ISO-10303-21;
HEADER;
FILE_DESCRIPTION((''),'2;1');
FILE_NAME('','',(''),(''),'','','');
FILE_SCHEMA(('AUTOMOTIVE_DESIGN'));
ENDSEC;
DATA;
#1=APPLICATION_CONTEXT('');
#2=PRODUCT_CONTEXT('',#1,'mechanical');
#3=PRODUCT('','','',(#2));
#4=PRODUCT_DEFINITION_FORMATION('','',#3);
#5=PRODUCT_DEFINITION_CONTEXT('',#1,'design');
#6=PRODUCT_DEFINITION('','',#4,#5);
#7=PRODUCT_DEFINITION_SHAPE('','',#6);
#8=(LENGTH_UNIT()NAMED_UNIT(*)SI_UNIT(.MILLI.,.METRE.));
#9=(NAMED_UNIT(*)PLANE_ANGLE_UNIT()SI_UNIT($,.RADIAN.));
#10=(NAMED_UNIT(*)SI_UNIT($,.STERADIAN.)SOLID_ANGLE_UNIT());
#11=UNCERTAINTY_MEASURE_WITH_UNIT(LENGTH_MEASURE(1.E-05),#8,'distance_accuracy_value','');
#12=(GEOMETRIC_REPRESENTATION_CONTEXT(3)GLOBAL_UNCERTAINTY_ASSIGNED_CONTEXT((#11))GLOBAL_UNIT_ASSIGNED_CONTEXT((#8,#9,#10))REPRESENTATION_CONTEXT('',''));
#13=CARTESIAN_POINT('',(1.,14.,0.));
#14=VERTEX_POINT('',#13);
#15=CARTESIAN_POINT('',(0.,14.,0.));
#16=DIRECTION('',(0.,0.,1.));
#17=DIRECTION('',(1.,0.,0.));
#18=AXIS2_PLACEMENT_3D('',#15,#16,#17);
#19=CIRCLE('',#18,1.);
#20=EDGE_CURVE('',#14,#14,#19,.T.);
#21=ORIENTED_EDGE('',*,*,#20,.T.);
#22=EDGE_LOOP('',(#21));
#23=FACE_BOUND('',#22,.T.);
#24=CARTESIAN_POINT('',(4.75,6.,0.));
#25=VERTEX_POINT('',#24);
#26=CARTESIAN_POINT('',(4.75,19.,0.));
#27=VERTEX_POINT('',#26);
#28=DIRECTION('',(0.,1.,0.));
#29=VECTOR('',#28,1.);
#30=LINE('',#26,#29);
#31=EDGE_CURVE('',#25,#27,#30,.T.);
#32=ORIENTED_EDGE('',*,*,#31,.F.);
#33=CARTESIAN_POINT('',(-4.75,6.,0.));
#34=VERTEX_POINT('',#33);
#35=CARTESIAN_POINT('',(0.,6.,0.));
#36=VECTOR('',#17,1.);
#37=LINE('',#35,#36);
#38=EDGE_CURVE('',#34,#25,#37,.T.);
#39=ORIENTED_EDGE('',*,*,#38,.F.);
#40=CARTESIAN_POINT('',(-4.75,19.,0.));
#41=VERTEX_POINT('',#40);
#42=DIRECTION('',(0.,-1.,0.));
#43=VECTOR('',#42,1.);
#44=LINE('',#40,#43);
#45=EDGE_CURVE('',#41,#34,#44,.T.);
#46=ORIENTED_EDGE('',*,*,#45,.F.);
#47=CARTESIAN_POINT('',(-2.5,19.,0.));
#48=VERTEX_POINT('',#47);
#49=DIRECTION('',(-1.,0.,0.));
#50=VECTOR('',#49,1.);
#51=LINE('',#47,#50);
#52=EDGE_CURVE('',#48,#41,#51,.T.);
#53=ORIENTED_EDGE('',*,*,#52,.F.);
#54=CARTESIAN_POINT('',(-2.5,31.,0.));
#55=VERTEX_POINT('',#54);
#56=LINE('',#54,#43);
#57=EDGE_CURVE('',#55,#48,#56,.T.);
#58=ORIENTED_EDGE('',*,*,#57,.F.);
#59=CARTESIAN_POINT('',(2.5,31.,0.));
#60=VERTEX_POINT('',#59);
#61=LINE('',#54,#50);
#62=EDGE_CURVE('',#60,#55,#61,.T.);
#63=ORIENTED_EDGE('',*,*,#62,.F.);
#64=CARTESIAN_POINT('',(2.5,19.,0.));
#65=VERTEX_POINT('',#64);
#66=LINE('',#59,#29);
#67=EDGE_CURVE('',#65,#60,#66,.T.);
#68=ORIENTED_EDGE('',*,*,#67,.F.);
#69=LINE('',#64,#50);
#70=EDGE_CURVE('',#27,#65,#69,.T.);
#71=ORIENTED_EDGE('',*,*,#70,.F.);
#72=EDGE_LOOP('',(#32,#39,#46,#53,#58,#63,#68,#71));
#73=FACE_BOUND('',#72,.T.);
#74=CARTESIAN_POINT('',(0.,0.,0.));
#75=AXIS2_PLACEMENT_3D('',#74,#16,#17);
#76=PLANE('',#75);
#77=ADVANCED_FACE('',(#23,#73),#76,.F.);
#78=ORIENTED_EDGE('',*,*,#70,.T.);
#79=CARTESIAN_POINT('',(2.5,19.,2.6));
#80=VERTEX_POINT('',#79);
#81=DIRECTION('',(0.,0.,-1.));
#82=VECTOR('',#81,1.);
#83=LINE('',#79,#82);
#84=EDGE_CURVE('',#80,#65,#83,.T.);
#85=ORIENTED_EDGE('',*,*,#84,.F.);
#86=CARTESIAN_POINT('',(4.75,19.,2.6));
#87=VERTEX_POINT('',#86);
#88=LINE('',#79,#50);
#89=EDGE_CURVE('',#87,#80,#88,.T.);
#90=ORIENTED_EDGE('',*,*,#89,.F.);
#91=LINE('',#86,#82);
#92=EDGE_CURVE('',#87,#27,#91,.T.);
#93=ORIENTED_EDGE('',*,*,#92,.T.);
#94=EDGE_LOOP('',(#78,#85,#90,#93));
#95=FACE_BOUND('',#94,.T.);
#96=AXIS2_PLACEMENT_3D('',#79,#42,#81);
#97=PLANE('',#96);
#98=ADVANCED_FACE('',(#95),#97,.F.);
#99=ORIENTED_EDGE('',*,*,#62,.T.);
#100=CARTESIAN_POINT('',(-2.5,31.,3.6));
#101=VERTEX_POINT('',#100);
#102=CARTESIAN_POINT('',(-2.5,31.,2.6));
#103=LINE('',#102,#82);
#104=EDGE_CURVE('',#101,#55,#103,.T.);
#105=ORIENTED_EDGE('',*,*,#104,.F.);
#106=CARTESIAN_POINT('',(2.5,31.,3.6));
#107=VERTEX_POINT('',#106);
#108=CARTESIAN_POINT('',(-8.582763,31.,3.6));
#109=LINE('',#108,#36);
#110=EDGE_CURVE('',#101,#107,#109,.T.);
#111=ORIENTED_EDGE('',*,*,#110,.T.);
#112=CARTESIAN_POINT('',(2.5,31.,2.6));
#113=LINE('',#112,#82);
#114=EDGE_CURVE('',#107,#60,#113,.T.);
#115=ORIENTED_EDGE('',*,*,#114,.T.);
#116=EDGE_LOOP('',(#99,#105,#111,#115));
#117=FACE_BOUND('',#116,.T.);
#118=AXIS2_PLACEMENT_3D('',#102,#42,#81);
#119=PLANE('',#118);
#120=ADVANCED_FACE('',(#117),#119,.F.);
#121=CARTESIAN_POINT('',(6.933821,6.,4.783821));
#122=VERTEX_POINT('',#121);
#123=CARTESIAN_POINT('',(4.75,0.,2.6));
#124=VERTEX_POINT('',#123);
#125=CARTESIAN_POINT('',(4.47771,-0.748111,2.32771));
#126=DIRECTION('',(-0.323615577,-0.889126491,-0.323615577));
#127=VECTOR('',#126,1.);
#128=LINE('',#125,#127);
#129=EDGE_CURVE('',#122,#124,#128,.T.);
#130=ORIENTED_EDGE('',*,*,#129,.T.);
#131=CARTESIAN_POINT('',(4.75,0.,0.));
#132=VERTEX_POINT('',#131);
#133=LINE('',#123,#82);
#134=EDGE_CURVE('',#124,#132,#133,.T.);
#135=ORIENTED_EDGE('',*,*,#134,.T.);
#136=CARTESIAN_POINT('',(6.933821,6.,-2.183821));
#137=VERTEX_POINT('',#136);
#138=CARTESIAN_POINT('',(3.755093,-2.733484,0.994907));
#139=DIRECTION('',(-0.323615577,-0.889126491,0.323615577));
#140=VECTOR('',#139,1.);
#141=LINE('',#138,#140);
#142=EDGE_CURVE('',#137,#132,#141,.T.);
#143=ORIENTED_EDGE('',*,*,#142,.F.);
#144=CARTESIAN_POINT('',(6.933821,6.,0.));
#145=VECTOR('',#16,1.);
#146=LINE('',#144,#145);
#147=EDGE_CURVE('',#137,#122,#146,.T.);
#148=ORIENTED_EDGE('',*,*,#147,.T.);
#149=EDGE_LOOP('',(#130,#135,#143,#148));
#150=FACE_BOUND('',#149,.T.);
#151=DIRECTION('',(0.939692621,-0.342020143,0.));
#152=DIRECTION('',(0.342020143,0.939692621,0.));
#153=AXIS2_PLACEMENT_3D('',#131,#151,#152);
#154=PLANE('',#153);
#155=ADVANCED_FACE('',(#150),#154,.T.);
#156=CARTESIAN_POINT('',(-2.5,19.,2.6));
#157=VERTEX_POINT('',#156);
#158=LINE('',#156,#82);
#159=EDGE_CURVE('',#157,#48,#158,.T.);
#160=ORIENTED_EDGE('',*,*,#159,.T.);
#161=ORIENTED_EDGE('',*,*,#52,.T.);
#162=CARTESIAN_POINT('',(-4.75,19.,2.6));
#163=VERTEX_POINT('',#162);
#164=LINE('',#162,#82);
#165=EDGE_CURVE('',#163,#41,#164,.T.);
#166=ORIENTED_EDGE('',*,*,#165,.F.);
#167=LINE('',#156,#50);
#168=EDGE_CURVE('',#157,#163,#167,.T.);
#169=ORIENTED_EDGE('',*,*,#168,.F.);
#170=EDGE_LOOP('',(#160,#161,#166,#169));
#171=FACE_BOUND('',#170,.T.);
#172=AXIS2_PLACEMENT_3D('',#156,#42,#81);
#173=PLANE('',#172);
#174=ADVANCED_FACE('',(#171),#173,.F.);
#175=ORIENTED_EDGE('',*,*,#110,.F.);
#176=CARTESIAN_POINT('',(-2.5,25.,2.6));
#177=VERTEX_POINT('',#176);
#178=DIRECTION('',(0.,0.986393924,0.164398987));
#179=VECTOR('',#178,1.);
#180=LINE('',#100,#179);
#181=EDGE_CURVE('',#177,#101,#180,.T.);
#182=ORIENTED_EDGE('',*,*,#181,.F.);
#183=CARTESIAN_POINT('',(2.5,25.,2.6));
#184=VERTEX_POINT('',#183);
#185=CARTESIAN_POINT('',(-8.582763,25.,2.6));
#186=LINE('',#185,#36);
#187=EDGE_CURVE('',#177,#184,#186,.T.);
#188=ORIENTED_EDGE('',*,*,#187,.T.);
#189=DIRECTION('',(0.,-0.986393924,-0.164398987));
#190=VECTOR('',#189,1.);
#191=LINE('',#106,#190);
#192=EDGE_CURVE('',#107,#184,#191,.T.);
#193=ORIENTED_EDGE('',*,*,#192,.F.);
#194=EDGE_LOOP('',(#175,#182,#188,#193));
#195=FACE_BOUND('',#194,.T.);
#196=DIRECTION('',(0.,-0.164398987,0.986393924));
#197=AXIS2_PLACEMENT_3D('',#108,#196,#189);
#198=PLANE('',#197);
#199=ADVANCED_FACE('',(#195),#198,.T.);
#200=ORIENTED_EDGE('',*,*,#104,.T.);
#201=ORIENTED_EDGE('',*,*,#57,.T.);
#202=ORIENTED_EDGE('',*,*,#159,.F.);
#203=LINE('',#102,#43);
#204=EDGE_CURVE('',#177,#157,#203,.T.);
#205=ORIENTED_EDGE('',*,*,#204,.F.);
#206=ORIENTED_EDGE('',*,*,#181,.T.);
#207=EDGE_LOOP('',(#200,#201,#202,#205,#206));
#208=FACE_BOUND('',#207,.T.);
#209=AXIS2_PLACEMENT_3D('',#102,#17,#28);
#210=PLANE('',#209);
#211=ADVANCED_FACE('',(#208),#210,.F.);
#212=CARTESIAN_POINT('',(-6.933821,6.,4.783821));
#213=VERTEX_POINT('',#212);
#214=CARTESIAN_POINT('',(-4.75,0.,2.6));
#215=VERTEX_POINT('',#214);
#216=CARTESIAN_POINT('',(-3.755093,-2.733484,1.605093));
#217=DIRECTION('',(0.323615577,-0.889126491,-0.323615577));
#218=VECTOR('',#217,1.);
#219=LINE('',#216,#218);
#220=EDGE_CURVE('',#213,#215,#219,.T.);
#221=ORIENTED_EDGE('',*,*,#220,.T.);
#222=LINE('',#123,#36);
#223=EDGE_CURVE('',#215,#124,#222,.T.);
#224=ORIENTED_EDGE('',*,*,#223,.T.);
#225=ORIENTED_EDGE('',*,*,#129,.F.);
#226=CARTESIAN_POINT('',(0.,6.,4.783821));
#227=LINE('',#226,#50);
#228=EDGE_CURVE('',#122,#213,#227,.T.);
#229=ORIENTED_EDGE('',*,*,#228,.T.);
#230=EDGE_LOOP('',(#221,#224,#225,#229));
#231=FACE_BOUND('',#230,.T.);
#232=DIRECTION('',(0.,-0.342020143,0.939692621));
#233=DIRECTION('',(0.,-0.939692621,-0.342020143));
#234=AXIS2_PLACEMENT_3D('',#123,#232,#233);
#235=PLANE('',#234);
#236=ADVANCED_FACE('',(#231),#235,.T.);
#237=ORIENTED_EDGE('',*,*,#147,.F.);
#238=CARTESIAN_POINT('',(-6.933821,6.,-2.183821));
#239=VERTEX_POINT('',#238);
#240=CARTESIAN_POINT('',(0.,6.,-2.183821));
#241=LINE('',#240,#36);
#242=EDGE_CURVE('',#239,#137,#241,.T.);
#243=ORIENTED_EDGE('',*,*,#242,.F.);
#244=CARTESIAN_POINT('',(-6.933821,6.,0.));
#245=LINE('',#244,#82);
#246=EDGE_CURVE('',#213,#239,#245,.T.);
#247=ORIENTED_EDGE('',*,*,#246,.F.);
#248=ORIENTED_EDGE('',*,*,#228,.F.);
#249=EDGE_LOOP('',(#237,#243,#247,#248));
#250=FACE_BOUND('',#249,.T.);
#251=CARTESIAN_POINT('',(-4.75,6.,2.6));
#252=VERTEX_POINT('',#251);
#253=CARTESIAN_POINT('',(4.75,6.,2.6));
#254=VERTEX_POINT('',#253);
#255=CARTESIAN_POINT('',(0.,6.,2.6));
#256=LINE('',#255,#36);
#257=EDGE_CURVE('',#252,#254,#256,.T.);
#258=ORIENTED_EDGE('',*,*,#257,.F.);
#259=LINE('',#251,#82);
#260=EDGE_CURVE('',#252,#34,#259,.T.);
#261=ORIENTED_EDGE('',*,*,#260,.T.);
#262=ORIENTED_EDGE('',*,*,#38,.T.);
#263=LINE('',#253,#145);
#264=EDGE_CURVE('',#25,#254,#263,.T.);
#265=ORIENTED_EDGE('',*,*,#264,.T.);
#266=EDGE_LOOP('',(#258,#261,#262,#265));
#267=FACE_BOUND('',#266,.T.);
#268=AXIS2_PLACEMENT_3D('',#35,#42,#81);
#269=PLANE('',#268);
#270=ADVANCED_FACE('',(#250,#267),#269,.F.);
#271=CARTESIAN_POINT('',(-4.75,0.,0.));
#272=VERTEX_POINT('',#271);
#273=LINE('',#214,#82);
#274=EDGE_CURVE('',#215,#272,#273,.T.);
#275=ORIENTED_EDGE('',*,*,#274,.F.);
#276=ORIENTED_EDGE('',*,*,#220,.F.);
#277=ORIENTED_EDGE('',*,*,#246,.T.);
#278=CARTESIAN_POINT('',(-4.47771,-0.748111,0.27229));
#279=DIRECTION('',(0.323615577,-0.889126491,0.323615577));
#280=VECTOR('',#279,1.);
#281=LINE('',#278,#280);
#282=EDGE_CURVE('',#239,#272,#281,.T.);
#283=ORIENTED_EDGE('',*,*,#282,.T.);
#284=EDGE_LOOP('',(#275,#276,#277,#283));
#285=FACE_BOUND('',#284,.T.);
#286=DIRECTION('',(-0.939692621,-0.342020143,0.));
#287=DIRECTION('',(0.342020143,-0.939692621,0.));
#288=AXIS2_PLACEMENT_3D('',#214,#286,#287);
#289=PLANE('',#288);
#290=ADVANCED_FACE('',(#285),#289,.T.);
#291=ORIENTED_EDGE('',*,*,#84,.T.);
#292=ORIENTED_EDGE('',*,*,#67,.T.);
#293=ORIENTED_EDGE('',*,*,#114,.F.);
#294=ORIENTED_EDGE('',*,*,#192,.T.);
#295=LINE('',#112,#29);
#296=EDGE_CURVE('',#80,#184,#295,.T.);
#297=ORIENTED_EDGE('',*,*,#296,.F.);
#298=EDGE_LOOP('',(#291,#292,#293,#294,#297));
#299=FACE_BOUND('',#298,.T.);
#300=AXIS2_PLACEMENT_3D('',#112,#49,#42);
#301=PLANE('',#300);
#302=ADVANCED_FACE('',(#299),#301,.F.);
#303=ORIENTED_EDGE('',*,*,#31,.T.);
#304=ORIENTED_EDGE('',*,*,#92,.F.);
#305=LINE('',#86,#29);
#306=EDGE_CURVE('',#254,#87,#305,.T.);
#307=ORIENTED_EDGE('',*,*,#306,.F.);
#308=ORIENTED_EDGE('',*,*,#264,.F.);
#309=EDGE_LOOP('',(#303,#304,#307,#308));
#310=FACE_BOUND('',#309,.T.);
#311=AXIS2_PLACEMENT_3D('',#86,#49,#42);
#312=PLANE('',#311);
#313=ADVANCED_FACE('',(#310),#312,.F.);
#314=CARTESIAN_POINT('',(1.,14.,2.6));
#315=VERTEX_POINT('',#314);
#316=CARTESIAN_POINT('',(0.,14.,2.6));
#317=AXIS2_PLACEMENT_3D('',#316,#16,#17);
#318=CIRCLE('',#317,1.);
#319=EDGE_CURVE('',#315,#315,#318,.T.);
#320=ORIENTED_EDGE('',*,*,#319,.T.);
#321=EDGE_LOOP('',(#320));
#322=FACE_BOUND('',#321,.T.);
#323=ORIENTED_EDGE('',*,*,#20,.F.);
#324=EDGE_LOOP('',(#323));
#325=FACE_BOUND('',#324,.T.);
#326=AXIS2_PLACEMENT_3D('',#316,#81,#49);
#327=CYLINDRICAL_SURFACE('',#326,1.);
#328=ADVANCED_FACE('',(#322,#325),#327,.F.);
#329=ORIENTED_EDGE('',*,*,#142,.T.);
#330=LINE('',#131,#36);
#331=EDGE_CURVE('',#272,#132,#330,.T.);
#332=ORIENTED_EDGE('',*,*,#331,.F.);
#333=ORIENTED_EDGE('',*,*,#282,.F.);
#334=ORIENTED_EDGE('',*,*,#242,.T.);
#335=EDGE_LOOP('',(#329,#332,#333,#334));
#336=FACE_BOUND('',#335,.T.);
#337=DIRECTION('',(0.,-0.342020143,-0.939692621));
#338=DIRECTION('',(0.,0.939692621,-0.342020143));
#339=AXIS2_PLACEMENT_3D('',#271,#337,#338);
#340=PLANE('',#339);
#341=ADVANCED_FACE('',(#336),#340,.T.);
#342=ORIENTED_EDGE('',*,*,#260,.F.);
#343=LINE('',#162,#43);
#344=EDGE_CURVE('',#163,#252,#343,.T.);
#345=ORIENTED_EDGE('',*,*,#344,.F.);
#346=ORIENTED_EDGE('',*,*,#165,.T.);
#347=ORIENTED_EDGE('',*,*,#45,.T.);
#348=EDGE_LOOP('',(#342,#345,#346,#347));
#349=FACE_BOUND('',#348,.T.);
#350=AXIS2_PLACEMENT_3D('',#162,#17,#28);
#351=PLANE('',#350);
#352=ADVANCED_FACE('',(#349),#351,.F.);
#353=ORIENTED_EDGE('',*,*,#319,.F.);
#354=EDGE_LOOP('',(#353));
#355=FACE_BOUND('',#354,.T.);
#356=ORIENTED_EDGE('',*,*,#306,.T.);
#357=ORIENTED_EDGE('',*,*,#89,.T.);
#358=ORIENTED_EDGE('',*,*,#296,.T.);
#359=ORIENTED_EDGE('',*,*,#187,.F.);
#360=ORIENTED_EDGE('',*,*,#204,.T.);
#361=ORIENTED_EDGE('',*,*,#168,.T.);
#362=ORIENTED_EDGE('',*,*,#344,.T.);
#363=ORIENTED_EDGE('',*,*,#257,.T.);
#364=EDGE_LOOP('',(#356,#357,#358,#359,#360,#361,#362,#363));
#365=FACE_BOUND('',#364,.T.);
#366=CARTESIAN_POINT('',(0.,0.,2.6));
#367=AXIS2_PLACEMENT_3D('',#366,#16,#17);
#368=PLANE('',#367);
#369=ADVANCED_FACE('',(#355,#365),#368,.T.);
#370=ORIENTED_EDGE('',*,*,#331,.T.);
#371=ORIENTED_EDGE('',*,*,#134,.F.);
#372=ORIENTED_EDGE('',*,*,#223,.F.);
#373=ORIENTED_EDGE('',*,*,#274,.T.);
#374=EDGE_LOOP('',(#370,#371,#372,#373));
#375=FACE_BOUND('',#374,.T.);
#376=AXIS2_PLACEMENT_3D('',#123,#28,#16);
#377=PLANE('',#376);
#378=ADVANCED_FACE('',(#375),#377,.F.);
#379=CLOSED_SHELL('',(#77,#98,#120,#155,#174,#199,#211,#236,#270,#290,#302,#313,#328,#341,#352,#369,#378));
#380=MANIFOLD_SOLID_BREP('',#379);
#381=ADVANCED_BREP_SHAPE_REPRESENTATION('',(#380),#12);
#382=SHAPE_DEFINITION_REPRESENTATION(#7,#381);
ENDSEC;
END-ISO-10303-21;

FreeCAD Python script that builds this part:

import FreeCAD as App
import Part
import Sketcher

V = App.Vector
Q = App.Units.Quantity


def add_polygon(sketch, points):
    """Adds a closed chain of lines whose ends are joined by coincident constraints."""
    first, n = sketch.GeometryCount, len(points)
    for a, b in zip(points, points[1:] + points[:1]):
        sketch.addGeometry(Part.LineSegment(App.Vector(*a, 0), App.Vector(*b, 0)), False)
    for i in range(n):
        sketch.addConstraint(Sketcher.Constraint("Coincident", first + i, 2, first + (i + 1) % n, 1))

doc = App.newDocument("Part")
params = doc.addObject("Spreadsheet::Sheet", "Params")
for row, (alias, value) in enumerate([
    ("sketch1_diameter", "2 mm"),
    ("sketch1_width", "5 mm"),
    ("sketch1_height", "12 mm"),
    ("sketch1_height2", "19 mm"),
    ("sketch1_width2", "9.5 mm"),
    ("pad1_length", "2.6 mm"),
    ("sketch2_width", "9.5 mm"),
    ("sketch2_height", "2.6 mm"),
    ("pad2_length", "6 mm"),
    ("pad2_taper", "20 deg"),
    ("sketch3_width", "6 mm"),
    ("sketch3_height", "1 mm"),
    ("pad3_length", "5 mm"),
], start=1):
    params.set(f"A{row}", alias)
    params.set(f"B{row}", "=" + value)
    params.setAlias(f"B{row}", alias)

body = doc.addObject("PartDesign::Body", "Body")

sketch1 = body.newObject("Sketcher::SketchObject", "Sketch")
sketch1.AttachmentSupport = (doc.getObject("XY_Plane"), [""])
sketch1.MapMode = "FlatFace"
add_polygon(sketch1, [(2.5, 31), (-2.5, 31), (-2.5, 19), (-4.8, 19), (-4.8, 0), (4.8, 0), (4.8, 19), (2.5, 19)])
sketch1.addGeometry(Part.Circle(V(0, 14, 0), V(0, 0, 1), 1), False)
sketch1.addConstraint([
    Sketcher.Constraint("Horizontal", 0),
    Sketcher.Constraint("Vertical", 1),
    Sketcher.Constraint("Horizontal", 2),
    Sketcher.Constraint("Vertical", 3),
    Sketcher.Constraint("Horizontal", 4),
    Sketcher.Constraint("Vertical", 5),
    Sketcher.Constraint("Horizontal", 6),
    Sketcher.Constraint("Vertical", 7),
    Sketcher.Constraint("Symmetric", 3, 2, 4, 2, -1, 1),
    Sketcher.Constraint("Symmetric", 1, 2, 6, 2, -2),
    Sketcher.Constraint("PointOnObject", 8, 3, -2),
    Sketcher.Constraint("Diameter", 8, Q("2 mm")),
    Sketcher.Constraint("DistanceX", 0, 2, 0, 1, Q("5 mm")),
    Sketcher.Constraint("DistanceY", 1, 2, 1, 1, Q("12 mm")),
    Sketcher.Constraint("DistanceY", 3, 2, 3, 1, Q("19 mm")),
    Sketcher.Constraint("DistanceX", 4, 1, 4, 2, Q("9.5 mm")),
    Sketcher.Constraint("DistanceY", -1, 1, 8, 3, Q("14 mm")),
])
sketch1.setExpression("Constraints[19]", "Params.sketch1_diameter")
sketch1.setExpression("Constraints[20]", "Params.sketch1_width")
sketch1.setExpression("Constraints[21]", "Params.sketch1_height")
sketch1.setExpression("Constraints[22]", "Params.sketch1_height2")
sketch1.setExpression("Constraints[23]", "Params.sketch1_width2")
pad1 = body.newObject("PartDesign::Pad", "Pad")
pad1.Profile = sketch1
pad1.setExpression("Length", "Params.pad1_length")

sketch2 = body.newObject("Sketcher::SketchObject", "Sketch001")
sketch2.AttachmentSupport = (doc.getObject("XZ_Plane"), [""])
sketch2.MapMode = "FlatFace"
add_polygon(sketch2, [(-4.8, 2.6), (-4.8, 0), (4.8, 0), (4.8, 2.6)])
sketch2.addConstraint([
    Sketcher.Constraint("Vertical", 0),
    Sketcher.Constraint("Horizontal", 1),
    Sketcher.Constraint("Vertical", 2),
    Sketcher.Constraint("Horizontal", 3),
    Sketcher.Constraint("Symmetric", 0, 2, 1, 2, -1, 1),
    Sketcher.Constraint("DistanceX", 1, 1, 1, 2, Q("9.5 mm")),
    Sketcher.Constraint("DistanceY", 0, 2, 0, 1, Q("2.6 mm")),
])
sketch2.setExpression("Constraints[9]", "Params.sketch2_width")
sketch2.setExpression("Constraints[10]", "Params.sketch2_height")
pad2 = body.newObject("PartDesign::Pad", "Pad001")
pad2.Profile = sketch2
pad2.setExpression("Length", "Params.pad2_length")
pad2.Reversed = True
pad2.setExpression("TaperAngle", "Params.pad2_taper")

sketch3 = body.newObject("Sketcher::SketchObject", "Sketch002")
sketch3.AttachmentSupport = (doc.getObject("YZ_Plane"), [""])
sketch3.MapMode = "FlatFace"
sketch3.AttachmentOffset = App.Placement(V(0, 0, 2.5), App.Rotation())
add_polygon(sketch3, [(31, 2.6), (31, 3.6), (25, 2.6)])
sketch3.addConstraint([
    Sketcher.Constraint("Vertical", 0),
    Sketcher.Constraint("Horizontal", 2),
    Sketcher.Constraint("DistanceX", 2, 1, 2, 2, Q("6 mm")),
    Sketcher.Constraint("DistanceY", 0, 1, 0, 2, Q("1 mm")),
    Sketcher.Constraint("DistanceX", -1, 1, 0, 2, Q("31 mm")),
    Sketcher.Constraint("DistanceY", -1, 1, 0, 2, Q("3.6 mm")),
])
sketch3.setExpression("Constraints[5]", "Params.sketch3_width")
sketch3.setExpression("Constraints[6]", "Params.sketch3_height")
pad3 = body.newObject("PartDesign::Pad", "Pad002")
pad3.Profile = sketch3
pad3.setExpression("Length", "Params.pad3_length")
pad3.Reversed = True

doc.recompute()
